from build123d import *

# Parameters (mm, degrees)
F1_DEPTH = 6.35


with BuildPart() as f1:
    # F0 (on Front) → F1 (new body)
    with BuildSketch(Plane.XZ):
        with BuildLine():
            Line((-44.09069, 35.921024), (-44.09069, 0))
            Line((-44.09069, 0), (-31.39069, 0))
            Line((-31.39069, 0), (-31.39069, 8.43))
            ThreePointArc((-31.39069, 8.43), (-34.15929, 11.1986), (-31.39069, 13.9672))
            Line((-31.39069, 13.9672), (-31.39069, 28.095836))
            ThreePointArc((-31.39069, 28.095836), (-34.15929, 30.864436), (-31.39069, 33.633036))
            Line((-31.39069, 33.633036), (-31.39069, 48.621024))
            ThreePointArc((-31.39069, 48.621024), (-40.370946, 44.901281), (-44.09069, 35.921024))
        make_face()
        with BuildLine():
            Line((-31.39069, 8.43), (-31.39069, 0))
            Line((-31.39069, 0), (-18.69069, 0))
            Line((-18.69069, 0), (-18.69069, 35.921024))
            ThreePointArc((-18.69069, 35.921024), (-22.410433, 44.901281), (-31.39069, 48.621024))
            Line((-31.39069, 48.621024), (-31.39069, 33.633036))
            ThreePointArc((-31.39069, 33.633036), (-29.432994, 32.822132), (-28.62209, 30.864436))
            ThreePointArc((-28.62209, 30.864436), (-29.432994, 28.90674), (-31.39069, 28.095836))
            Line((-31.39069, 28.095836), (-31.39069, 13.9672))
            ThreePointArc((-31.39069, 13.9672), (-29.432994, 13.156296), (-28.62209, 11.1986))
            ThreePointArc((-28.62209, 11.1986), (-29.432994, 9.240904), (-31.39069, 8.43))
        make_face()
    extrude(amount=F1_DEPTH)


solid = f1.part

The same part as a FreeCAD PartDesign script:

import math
import FreeCAD as App
import Part
import Sketcher

V = App.Vector
Q = App.Units.Quantity

doc = App.newDocument("Part")
body = doc.addObject("PartDesign::Body", "Body")

# Sketch on XZ plane
sketch1 = body.newObject("Sketcher::SketchObject", "Sketch")
sketch1.AttachmentSupport = (doc.getObject("XZ_Plane"), [""])
sketch1.MapMode = "FlatFace"
sketch1.addGeometry([
    Part.LineSegment(V(-44.1, 35.9, 0), V(-44.1, 0, 0)),  # 0
    Part.LineSegment(V(-44.1, 0, 0), V(-18.7, 0, 0)),  # 1
    Part.LineSegment(V(-18.7, 0, 0), V(-18.7, 35.9, 0)),  # 2
    Part.ArcOfCircle(Part.Circle(V(-31.4, 35.9, 0), V(0, 0, 1), 12.7), math.radians(0), math.radians(90)),  # 3
    Part.ArcOfCircle(Part.Circle(V(-31.4, 35.9, 0), V(0, 0, 1), 12.7), math.radians(90), math.radians(180)),  # 4
    Part.ArcOfCircle(Part.Circle(V(-31.4, 11.2, 0), V(0, 0, 1), 2.8), math.radians(90), math.radians(270)),  # 5
    Part.ArcOfCircle(Part.Circle(V(-31.4, 11.2, 0), V(0, 0, 1), 2.8), math.radians(0), math.radians(90)),  # 6
    Part.ArcOfCircle(Part.Circle(V(-31.4, 11.2, 0), V(0, 0, 1), 2.8), math.radians(-90), math.radians(0)),  # 7
    Part.ArcOfCircle(Part.Circle(V(-31.4, 30.9, 0), V(0, 0, 1), 2.8), math.radians(90), math.radians(270)),  # 8
    Part.ArcOfCircle(Part.Circle(V(-31.4, 30.9, 0), V(0, 0, 1), 2.8), math.radians(0), math.radians(90)),  # 9
    Part.ArcOfCircle(Part.Circle(V(-31.4, 30.9, 0), V(0, 0, 1), 2.8), math.radians(-90), math.radians(0)),  # 10
], False)
sketch1.addConstraint([
    Sketcher.Constraint("Coincident", 0, 2, 1, 1),
    Sketcher.Constraint("Coincident", 1, 2, 2, 1),
    Sketcher.Constraint("Tangent", 2, 2, 3, 1),
    Sketcher.Constraint("Tangent", 3, 2, 4, 1),
    Sketcher.Constraint("Tangent", 4, 2, 0, 1),
    Sketcher.Constraint("Tangent", 5, 1, 6, 2),
    Sketcher.Constraint("Tangent", 6, 1, 7, 2),
    Sketcher.Constraint("Tangent", 7, 1, 5, 2),
    Sketcher.Constraint("Tangent", 8, 1, 9, 2),
    Sketcher.Constraint("Tangent", 9, 1, 10, 2),
    Sketcher.Constraint("Tangent", 10, 1, 8, 2),
    Sketcher.Constraint("Vertical", 0),
    Sketcher.Constraint("Horizontal", 1),
    Sketcher.Constraint("Vertical", 2),
    Sketcher.Constraint("Equal", 3, 4),
    Sketcher.Constraint("Equal", 7, 8),
    Sketcher.Constraint("PointOnObject", 0, 2, -1),
    Sketcher.Constraint("Horizontal", 7, 3, 6, 1),
    Sketcher.Constraint("Horizontal", 10, 3, 9, 1),
    Sketcher.Constraint("Vertical", 4, 3, 5, 3),
    Sketcher.Constraint("Vertical", 7, 3, 8, 3),
    Sketcher.Constraint("Vertical", 10, 3, 3, 2),
    Sketcher.Constraint("Vertical", 3, 2, 5, 1),
    Sketcher.Constraint("Vertical", 5, 1, 7, 1),
    Sketcher.Constraint("Vertical", 7, 1, 8, 1),
    Sketcher.Constraint("Vertical", 8, 1, 10, 1),
    Sketcher.Constraint("Radius", 3, Q("0.4999999 in")),
    Sketcher.Constraint("Radius", 5, Q("0.109 in")),
    Sketcher.Constraint("DistanceY", -1, 1, 5, 3, 11.1986),
    Sketcher.Constraint("DistanceY", 0, 2, 0, 1, 35.921024),
    Sketcher.Constraint("DistanceX", 4, 3, -1, 1, 31.390691),
    Sketcher.Constraint("DistanceY", 8, 3, 4, 3, 5.056589),
])
pad1 = body.newObject("PartDesign::Pad", "Pad")
pad1.Profile = sketch1
pad1.Length = Q("0.25 in")

doc.recompute()
